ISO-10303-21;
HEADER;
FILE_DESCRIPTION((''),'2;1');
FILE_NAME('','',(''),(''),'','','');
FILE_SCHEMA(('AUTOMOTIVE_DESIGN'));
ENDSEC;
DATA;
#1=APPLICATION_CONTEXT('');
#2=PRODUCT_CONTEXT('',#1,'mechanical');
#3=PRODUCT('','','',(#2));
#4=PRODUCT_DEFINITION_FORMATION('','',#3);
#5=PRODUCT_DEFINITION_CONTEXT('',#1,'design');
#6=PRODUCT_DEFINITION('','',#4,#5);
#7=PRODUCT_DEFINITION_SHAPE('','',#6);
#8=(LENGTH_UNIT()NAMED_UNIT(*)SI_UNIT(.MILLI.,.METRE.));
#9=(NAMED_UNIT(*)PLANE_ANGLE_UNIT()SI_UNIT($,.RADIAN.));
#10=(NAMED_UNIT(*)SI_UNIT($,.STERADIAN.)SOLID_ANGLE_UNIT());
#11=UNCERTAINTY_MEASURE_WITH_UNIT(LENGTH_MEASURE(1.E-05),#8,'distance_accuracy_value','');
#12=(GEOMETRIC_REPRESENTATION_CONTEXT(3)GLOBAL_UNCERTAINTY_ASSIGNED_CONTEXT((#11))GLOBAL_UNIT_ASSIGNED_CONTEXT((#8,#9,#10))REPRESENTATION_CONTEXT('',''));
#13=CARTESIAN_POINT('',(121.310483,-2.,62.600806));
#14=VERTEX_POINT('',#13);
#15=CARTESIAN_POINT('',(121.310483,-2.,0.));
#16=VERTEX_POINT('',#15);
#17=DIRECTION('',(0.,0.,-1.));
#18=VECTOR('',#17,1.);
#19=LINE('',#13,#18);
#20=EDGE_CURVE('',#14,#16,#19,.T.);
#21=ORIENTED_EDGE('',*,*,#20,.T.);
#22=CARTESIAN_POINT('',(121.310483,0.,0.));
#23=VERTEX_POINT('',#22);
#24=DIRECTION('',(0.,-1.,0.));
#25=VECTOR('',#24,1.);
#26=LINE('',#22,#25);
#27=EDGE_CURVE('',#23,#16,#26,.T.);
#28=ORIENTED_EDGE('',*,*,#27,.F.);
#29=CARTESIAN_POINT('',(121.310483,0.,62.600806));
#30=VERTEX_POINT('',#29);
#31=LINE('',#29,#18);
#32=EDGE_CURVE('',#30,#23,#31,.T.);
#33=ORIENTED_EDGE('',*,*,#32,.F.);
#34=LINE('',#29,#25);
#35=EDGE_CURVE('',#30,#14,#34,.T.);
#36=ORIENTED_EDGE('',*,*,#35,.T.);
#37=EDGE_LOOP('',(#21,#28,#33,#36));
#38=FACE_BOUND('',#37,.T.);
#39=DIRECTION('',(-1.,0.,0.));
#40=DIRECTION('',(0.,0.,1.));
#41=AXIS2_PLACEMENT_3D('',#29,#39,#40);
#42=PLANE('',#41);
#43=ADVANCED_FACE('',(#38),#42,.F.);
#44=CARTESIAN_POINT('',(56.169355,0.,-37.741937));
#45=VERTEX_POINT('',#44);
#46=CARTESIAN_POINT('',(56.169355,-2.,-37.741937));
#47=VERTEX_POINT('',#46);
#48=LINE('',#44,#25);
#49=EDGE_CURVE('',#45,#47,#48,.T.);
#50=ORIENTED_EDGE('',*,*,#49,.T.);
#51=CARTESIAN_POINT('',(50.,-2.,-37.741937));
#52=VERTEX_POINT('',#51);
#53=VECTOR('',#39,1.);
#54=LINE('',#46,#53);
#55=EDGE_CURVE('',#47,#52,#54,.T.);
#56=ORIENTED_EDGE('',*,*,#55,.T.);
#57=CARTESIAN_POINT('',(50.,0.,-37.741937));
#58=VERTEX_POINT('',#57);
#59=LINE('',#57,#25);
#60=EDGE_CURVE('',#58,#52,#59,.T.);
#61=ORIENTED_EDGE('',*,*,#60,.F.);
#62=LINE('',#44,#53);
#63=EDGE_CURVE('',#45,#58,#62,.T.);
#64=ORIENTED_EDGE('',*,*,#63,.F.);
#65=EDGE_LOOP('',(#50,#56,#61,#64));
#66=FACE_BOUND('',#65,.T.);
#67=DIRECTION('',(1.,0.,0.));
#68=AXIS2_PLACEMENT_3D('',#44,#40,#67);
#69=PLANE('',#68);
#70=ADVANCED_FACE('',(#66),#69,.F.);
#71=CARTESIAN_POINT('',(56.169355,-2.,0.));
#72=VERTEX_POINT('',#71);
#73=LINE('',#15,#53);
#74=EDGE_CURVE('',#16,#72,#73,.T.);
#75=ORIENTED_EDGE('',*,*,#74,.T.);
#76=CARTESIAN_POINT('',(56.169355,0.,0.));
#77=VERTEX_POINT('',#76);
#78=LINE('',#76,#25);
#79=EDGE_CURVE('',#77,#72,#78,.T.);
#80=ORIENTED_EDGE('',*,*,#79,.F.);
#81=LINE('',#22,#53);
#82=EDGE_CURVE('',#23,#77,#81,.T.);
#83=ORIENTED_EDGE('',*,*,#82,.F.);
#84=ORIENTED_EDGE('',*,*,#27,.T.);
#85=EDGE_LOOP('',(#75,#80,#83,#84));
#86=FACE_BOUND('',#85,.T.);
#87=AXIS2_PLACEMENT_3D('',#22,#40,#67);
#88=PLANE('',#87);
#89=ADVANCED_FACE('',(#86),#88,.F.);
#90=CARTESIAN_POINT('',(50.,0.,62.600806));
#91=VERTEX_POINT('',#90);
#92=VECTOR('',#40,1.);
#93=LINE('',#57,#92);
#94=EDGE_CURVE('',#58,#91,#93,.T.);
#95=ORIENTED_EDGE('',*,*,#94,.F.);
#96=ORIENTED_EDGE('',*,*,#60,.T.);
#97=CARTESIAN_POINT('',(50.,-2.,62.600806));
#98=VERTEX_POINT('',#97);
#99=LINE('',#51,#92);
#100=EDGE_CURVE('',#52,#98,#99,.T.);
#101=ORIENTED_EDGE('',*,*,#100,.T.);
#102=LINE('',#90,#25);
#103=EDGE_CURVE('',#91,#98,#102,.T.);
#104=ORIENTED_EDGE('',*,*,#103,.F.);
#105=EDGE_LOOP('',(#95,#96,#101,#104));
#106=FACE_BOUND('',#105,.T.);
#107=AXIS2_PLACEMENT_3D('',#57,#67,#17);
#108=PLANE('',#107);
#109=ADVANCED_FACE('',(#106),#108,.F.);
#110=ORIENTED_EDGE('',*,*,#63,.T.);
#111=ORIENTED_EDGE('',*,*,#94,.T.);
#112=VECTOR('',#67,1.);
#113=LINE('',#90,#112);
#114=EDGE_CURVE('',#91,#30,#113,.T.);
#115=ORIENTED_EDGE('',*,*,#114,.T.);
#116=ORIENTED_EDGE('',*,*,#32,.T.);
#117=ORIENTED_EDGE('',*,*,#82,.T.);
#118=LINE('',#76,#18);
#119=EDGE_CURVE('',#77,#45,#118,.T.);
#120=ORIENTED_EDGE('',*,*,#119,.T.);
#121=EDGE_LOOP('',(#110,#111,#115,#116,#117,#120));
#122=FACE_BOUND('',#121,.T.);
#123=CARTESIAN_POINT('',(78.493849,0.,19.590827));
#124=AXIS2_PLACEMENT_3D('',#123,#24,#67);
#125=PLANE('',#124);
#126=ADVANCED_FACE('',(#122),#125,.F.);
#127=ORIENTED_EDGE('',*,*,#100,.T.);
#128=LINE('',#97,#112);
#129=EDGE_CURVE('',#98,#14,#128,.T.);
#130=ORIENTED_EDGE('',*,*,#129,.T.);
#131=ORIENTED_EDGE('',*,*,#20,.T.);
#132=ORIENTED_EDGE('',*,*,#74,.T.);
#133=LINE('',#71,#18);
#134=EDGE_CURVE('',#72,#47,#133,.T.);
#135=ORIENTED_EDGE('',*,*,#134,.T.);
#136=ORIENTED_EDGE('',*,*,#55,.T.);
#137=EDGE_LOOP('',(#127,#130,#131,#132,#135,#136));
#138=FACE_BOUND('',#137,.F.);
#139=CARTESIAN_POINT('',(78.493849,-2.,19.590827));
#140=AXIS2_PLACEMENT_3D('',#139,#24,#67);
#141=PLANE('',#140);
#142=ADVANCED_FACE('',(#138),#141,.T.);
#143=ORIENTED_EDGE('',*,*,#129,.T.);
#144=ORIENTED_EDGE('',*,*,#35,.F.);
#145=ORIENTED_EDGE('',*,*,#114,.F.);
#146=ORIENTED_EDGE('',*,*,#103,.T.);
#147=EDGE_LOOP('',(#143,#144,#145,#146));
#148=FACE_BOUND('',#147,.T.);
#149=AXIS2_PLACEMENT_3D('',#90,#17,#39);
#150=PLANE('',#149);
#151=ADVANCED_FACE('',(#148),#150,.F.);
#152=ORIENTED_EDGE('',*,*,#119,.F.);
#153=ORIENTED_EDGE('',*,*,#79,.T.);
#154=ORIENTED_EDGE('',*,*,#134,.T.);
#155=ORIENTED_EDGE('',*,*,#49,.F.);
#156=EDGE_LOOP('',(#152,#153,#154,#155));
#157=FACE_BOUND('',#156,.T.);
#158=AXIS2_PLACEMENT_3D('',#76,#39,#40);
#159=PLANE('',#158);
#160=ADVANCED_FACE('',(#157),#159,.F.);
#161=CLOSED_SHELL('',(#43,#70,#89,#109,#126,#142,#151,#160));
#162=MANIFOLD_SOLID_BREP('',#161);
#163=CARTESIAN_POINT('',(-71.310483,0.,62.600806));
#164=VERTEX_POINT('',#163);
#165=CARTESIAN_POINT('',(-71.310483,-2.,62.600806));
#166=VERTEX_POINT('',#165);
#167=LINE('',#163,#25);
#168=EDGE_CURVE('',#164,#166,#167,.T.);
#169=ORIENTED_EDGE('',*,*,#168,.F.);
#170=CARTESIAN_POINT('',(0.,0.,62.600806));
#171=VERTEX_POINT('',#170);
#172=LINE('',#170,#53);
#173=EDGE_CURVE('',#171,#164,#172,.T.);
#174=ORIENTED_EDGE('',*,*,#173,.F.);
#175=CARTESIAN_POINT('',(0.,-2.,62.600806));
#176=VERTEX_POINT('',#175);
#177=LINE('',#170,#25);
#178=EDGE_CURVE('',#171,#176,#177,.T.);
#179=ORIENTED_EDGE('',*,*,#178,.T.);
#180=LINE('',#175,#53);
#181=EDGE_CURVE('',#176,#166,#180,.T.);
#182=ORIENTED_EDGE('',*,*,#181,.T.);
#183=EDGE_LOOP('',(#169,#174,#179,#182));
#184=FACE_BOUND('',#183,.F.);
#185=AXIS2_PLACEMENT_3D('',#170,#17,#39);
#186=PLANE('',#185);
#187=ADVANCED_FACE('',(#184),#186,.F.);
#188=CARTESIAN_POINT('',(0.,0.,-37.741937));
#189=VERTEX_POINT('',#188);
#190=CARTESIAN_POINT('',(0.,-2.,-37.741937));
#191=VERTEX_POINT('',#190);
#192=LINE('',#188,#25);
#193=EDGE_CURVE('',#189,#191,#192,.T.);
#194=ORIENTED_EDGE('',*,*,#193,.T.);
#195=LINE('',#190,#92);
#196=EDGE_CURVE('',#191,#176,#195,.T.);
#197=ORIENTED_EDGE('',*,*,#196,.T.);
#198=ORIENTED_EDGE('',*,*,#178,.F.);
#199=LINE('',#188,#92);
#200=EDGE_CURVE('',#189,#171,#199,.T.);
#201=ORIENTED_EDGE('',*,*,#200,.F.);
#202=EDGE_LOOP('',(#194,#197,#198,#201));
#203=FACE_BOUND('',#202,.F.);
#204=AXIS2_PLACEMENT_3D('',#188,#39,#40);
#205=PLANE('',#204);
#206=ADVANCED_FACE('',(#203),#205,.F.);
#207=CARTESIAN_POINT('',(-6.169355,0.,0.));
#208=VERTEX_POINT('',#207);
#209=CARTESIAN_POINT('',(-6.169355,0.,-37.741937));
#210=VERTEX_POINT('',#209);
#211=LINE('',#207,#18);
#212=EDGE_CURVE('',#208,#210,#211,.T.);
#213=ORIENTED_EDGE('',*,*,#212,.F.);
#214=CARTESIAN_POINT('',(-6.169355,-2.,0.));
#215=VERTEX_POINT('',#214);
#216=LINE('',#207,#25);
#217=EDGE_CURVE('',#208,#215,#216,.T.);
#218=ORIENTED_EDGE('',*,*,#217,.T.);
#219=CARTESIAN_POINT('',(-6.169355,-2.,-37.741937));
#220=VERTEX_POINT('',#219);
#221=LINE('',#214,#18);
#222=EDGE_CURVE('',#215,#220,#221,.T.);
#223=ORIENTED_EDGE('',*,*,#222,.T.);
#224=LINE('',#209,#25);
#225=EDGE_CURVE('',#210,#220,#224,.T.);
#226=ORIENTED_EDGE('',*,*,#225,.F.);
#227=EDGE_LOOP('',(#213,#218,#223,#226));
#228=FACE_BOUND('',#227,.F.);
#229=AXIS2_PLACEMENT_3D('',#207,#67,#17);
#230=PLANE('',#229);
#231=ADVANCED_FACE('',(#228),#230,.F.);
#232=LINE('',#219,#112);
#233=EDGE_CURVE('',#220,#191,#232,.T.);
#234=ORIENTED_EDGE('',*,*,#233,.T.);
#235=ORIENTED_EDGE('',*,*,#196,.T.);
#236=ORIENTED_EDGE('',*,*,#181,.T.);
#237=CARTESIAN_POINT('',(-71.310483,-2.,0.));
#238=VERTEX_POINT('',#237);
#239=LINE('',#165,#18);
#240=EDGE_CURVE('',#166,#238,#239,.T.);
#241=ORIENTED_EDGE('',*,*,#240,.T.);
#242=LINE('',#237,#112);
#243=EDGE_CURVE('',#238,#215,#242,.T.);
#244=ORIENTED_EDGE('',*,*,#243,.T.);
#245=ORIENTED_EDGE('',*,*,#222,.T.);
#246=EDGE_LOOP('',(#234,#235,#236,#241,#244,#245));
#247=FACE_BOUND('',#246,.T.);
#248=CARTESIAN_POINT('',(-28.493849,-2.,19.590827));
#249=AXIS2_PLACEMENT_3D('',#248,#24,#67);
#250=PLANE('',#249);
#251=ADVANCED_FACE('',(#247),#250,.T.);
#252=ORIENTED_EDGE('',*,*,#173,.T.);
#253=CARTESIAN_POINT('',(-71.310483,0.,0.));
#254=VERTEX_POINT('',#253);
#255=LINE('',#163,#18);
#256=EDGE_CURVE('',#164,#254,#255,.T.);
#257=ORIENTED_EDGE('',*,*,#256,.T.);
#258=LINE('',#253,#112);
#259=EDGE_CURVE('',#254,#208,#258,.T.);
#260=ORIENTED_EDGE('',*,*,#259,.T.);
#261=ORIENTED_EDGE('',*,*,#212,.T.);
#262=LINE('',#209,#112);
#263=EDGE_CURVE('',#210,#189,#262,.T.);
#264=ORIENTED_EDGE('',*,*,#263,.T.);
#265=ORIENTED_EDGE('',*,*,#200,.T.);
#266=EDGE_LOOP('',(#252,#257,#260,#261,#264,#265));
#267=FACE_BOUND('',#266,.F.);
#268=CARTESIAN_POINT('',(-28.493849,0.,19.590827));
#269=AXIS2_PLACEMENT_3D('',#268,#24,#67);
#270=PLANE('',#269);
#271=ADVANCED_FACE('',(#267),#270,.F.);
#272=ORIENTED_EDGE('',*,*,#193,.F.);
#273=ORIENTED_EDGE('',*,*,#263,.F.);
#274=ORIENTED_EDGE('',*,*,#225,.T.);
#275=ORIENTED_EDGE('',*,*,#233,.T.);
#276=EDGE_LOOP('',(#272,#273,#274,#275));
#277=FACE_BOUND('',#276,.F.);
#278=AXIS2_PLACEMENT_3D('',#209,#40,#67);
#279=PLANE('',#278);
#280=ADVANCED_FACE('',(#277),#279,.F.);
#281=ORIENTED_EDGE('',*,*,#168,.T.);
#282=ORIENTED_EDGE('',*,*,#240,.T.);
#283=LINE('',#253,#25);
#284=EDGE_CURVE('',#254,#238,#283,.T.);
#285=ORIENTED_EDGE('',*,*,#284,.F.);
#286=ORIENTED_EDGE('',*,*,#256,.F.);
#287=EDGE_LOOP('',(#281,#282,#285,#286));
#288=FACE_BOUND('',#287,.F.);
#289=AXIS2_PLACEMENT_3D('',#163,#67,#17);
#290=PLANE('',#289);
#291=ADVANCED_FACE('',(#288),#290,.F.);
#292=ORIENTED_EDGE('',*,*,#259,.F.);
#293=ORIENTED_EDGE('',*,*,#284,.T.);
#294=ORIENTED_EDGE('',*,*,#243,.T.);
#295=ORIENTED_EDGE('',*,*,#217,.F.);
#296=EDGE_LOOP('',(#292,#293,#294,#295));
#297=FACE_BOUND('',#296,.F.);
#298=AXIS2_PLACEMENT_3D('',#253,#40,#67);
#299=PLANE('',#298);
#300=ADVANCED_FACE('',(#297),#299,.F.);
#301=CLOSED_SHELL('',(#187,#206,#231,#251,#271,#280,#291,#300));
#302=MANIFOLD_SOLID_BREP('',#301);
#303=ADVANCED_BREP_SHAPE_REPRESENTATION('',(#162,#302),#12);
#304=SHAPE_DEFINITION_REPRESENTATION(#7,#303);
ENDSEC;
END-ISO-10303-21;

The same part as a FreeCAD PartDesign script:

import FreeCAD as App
import Part
import Sketcher

V = App.Vector


def add_polygon(sketch, points):
    """Adds a closed chain of lines whose ends are joined by coincident constraints."""
    first, n = sketch.GeometryCount, len(points)
    for a, b in zip(points, points[1:] + points[:1]):
        sketch.addGeometry(Part.LineSegment(App.Vector(*a, 0), App.Vector(*b, 0)), False)
    for i in range(n):
        sketch.addConstraint(Sketcher.Constraint("Coincident", first + i, 2, first + (i + 1) % n, 1))

doc = App.newDocument("Part")
body = doc.addObject("PartDesign::Body", "Body")

sketch1 = doc.addObject("Sketcher::SketchObject", "Sketch")
body.addObject(sketch1)
sketch1.AttachmentSupport = (doc.XZ_Plane, [""])
sketch1.MapMode = "FlatFace"
add_polygon(sketch1, [(0, 63), (-71, 63), (-71, 0), (-6, 0), (-6, -38), (0, -38)])
sketch1.addConstraint([
    Sketcher.Constraint("Horizontal", 0),
    Sketcher.Constraint("Vertical", 1),
    Sketcher.Constraint("Horizontal", 2),
    Sketcher.Constraint("Vertical", 3),
    Sketcher.Constraint("Horizontal", 4),
    Sketcher.Constraint("Vertical", 5),
    Sketcher.Constraint("PointOnObject", 1, 2, -1),
    Sketcher.Constraint("PointOnObject", 4, 2, -2),
    Sketcher.Constraint("DistanceX", 2, 1, 2, 2, 65.141128),
    Sketcher.Constraint("DistanceX", 0, 2, 0, 1, 71.310483),
    Sketcher.Constraint("DistanceY", 1, 2, 1, 1, 62.600806),
    Sketcher.Constraint("DistanceY", 3, 2, 3, 1, 37.741937),
])
pad1 = doc.addObject("PartDesign::Pad", "Pad")
body.addObject(pad1)
pad1.Profile = sketch1
pad1.Length = 2
body2 = doc.addObject("PartDesign::Body", "Body001")
doc.recompute()

mirroring = doc.addObject("Part::Mirroring", "Mirroring")
mirroring.Source = body
mirroring.Base = V(25, 0, 0)
mirroring.Normal = V(1, 0, 0)
body2.BaseFeature = mirroring
doc.recompute()
mirroring.Visibility = False

doc.recompute()
